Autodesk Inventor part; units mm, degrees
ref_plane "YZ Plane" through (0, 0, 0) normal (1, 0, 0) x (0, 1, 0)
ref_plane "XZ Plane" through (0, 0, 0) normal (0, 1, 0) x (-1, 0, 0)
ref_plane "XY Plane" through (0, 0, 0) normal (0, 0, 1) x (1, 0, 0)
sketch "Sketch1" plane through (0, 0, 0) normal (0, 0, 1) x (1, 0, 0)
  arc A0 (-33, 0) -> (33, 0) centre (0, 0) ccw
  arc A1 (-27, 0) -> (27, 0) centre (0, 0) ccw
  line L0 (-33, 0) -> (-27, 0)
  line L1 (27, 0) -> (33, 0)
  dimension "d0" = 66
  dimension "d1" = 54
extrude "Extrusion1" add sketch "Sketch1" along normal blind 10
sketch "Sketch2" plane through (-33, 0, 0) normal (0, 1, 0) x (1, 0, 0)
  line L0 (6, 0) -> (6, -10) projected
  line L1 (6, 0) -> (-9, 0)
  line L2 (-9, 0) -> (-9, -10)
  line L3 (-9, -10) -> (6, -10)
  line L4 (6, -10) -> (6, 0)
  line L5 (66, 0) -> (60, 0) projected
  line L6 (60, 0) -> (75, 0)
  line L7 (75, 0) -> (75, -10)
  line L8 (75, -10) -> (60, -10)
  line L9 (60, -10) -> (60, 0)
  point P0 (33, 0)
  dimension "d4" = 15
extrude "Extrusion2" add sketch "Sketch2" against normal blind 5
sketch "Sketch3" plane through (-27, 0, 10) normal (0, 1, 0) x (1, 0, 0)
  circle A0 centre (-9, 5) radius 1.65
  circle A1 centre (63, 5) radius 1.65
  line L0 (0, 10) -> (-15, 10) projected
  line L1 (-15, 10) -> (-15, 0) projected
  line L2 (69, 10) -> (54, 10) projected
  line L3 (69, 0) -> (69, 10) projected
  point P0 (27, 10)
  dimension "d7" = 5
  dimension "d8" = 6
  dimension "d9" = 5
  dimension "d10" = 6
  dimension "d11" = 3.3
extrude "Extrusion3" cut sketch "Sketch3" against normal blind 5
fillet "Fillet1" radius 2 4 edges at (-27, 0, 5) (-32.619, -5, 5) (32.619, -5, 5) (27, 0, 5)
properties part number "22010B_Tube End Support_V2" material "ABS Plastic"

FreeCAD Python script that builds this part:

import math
import FreeCAD as App
import Part
import Sketcher

V = App.Vector


def edges_at(feature, points):
    """Names of the edges that pass closest to the given points."""
    edges = feature.Shape.Edges
    near = lambda p: min(range(len(edges)), key=lambda i: edges[i].distToShape(Part.Vertex(*p))[0])
    return sorted({f"Edge{near(p) + 1}" for p in points})


def add_polygon(sketch, points):
    """Adds a closed chain of lines whose ends are joined by coincident constraints."""
    first, n = sketch.GeometryCount, len(points)
    for a, b in zip(points, points[1:] + points[:1]):
        sketch.addGeometry(Part.LineSegment(App.Vector(*a, 0), App.Vector(*b, 0)), False)
    for i in range(n):
        sketch.addConstraint(Sketcher.Constraint("Coincident", first + i, 2, first + (i + 1) % n, 1))

doc = App.newDocument("Part")
body = doc.addObject("PartDesign::Body", "Body")

# Sketch on XY plane
sketch1 = doc.addObject("Sketcher::SketchObject", "Sketch")
body.addObject(sketch1)
sketch1.AttachmentSupport = (doc.XY_Plane, [""])
sketch1.MapMode = "FlatFace"
sketch1.addGeometry(Part.LineSegment(V(-27, 0, 0), V(-33, 0, 0)), False)
sketch1.addGeometry(Part.ArcOfCircle(Part.Circle(V(0, 0, 0), V(0, 0, 1), 33), math.radians(180), math.radians(360)), False)
sketch1.addGeometry(Part.LineSegment(V(33, 0, 0), V(27, 0, 0)), False)
sketch1.addGeometry(Part.ArcOfCircle(Part.Circle(V(0, 0, 0), V(0, 0, 1), 27), math.radians(180), math.radians(360)), False)
sketch1.addConstraint(Sketcher.Constraint("Coincident", 0, 2, 1, 1))
sketch1.addConstraint(Sketcher.Constraint("Coincident", 1, 2, 2, 1))
sketch1.addConstraint(Sketcher.Constraint("Coincident", 2, 2, 3, 2))
sketch1.addConstraint(Sketcher.Constraint("Coincident", 3, 1, 0, 1))
sketch1.addConstraint(Sketcher.Constraint("Horizontal", 0))
sketch1.addConstraint(Sketcher.Constraint("Horizontal", 2))
sketch1.addConstraint(Sketcher.Constraint("Coincident", 1, 3, -1, 1))
sketch1.addConstraint(Sketcher.Constraint("Coincident", 3, 3, -1, 1))
sketch1.addConstraint(Sketcher.Constraint("PointOnObject", 0, 2, -1))
sketch1.addConstraint(Sketcher.Constraint("PointOnObject", 1, 2, -1))
sketch1.addConstraint(Sketcher.Constraint("Radius", 1, 33.0))
sketch1.addConstraint(Sketcher.Constraint("Radius", 3, 27.0))
pad1 = doc.addObject("PartDesign::Pad", "Pad")
body.addObject(pad1)
pad1.Profile = sketch1
pad1.Length = 10

# Sketch on XZ plane
sketch2 = doc.addObject("Sketcher::SketchObject", "Sketch001")
body.addObject(sketch2)
sketch2.AttachmentSupport = (doc.XZ_Plane, [""])
sketch2.MapMode = "FlatFace"
add_polygon(sketch2, [(-27, 10), (-27, 0), (-42, 0), (-42, 10)])  # lines 0-3
add_polygon(sketch2, [(42, 0), (27, 0), (27, 10), (42, 10)])  # lines 4-7
sketch2.addConstraint(Sketcher.Constraint("Vertical", 0))
sketch2.addConstraint(Sketcher.Constraint("Horizontal", 1))
sketch2.addConstraint(Sketcher.Constraint("Vertical", 2))
sketch2.addConstraint(Sketcher.Constraint("Horizontal", 3))
sketch2.addConstraint(Sketcher.Constraint("Horizontal", 4))
sketch2.addConstraint(Sketcher.Constraint("Vertical", 5))
sketch2.addConstraint(Sketcher.Constraint("Horizontal", 6))
sketch2.addConstraint(Sketcher.Constraint("Vertical", 7))
sketch2.addConstraint(Sketcher.Constraint("Symmetric", 0, 2, 4, 2, -1, 1))
sketch2.addConstraint(Sketcher.Constraint("Symmetric", 2, 2, 6, 2, -2))
sketch2.addConstraint(Sketcher.Constraint("PointOnObject", 0, 2, -1))
sketch2.addConstraint(Sketcher.Constraint("DistanceX", 1, 2, 1, 1, 15.0))
sketch2.addConstraint(Sketcher.Constraint("DistanceY", 0, 2, 0, 1, 10.0))
sketch2.addConstraint(Sketcher.Constraint("DistanceX", 0, 2, -1, 1, 27.0))
pad2 = doc.addObject("PartDesign::Pad", "Pad001")
body.addObject(pad2)
pad2.Profile = sketch2
pad2.Length = 5

# Sketch on XZ plane
sketch3 = doc.addObject("Sketcher::SketchObject", "Sketch002")
body.addObject(sketch3)
sketch3.AttachmentSupport = (doc.XZ_Plane, [""])
sketch3.MapMode = "FlatFace"
sketch3.addGeometry(Part.Circle(V(-36, 5, 0), V(0, 0, 1), 1.6), False)
sketch3.addGeometry(Part.Circle(V(36, 5, 0), V(0, 0, 1), 1.6), False)
sketch3.addConstraint(Sketcher.Constraint("Equal", 0, 1))
sketch3.addConstraint(Sketcher.Constraint("Symmetric", 0, 3, 1, 3, -2))
sketch3.addConstraint(Sketcher.Constraint("Diameter", 0, 3.3))
sketch3.addConstraint(Sketcher.Constraint("DistanceY", -1, 1, 0, 3, 5.0))
sketch3.addConstraint(Sketcher.Constraint("DistanceX", 0, 3, -1, 1, 36.0))
pocket1 = doc.addObject("PartDesign::Pocket", "Pocket")
body.addObject(pocket1)
pocket1.Profile = sketch3
pocket1.Length = 5
pocket1.Reversed = True
doc.recompute()

fillet = doc.addObject("PartDesign::Fillet", "Fillet")
body.addObject(fillet)
fillet.Base = (pocket1, edges_at(pocket1, [
    (-27, 0, 5),
    (-32.619, -5, 5),
    (32.619, -5, 5),
    (27, 0, 5),
]))
fillet.Radius = 2

doc.recompute()
